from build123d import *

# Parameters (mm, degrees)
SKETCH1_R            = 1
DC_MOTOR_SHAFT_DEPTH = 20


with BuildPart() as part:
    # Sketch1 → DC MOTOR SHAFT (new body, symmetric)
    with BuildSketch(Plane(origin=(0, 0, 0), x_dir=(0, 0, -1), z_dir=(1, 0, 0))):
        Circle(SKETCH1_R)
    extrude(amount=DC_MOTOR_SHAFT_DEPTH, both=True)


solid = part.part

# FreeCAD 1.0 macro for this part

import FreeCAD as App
import Part
import Sketcher

V = App.Vector
Q = App.Units.Quantity

doc = App.newDocument("Part")
params = doc.addObject("Spreadsheet::Sheet", "Params")
for row, (alias, value) in enumerate([
    ("sketch1_diameter", "2 mm"),
    ("pad1_length", "40 mm"),
], start=1):
    params.set(f"A{row}", alias)
    params.set(f"B{row}", "=" + value)
    params.setAlias(f"B{row}", alias)

body = doc.addObject("PartDesign::Body", "Body")

sketch1 = body.newObject("Sketcher::SketchObject", "Sketch")
sketch1.AttachmentSupport = (doc.getObject("YZ_Plane"), [""])
sketch1.MapMode = "FlatFace"
sketch1.addGeometry(Part.Circle(V(0, 0, 0), V(0, 0, 1), 1), False)
sketch1.addConstraint(Sketcher.Constraint("Coincident", 0, 3, -1, 1))
sketch1.addConstraint(Sketcher.Constraint("Diameter", 0, Q("2 mm")))
sketch1.setExpression("Constraints[1]", "Params.sketch1_diameter")
pad1 = body.newObject("PartDesign::Pad", "Pad")
pad1.Profile = sketch1
pad1.setExpression("Length", "Params.pad1_length")
pad1.Midplane = True

doc.recompute()
